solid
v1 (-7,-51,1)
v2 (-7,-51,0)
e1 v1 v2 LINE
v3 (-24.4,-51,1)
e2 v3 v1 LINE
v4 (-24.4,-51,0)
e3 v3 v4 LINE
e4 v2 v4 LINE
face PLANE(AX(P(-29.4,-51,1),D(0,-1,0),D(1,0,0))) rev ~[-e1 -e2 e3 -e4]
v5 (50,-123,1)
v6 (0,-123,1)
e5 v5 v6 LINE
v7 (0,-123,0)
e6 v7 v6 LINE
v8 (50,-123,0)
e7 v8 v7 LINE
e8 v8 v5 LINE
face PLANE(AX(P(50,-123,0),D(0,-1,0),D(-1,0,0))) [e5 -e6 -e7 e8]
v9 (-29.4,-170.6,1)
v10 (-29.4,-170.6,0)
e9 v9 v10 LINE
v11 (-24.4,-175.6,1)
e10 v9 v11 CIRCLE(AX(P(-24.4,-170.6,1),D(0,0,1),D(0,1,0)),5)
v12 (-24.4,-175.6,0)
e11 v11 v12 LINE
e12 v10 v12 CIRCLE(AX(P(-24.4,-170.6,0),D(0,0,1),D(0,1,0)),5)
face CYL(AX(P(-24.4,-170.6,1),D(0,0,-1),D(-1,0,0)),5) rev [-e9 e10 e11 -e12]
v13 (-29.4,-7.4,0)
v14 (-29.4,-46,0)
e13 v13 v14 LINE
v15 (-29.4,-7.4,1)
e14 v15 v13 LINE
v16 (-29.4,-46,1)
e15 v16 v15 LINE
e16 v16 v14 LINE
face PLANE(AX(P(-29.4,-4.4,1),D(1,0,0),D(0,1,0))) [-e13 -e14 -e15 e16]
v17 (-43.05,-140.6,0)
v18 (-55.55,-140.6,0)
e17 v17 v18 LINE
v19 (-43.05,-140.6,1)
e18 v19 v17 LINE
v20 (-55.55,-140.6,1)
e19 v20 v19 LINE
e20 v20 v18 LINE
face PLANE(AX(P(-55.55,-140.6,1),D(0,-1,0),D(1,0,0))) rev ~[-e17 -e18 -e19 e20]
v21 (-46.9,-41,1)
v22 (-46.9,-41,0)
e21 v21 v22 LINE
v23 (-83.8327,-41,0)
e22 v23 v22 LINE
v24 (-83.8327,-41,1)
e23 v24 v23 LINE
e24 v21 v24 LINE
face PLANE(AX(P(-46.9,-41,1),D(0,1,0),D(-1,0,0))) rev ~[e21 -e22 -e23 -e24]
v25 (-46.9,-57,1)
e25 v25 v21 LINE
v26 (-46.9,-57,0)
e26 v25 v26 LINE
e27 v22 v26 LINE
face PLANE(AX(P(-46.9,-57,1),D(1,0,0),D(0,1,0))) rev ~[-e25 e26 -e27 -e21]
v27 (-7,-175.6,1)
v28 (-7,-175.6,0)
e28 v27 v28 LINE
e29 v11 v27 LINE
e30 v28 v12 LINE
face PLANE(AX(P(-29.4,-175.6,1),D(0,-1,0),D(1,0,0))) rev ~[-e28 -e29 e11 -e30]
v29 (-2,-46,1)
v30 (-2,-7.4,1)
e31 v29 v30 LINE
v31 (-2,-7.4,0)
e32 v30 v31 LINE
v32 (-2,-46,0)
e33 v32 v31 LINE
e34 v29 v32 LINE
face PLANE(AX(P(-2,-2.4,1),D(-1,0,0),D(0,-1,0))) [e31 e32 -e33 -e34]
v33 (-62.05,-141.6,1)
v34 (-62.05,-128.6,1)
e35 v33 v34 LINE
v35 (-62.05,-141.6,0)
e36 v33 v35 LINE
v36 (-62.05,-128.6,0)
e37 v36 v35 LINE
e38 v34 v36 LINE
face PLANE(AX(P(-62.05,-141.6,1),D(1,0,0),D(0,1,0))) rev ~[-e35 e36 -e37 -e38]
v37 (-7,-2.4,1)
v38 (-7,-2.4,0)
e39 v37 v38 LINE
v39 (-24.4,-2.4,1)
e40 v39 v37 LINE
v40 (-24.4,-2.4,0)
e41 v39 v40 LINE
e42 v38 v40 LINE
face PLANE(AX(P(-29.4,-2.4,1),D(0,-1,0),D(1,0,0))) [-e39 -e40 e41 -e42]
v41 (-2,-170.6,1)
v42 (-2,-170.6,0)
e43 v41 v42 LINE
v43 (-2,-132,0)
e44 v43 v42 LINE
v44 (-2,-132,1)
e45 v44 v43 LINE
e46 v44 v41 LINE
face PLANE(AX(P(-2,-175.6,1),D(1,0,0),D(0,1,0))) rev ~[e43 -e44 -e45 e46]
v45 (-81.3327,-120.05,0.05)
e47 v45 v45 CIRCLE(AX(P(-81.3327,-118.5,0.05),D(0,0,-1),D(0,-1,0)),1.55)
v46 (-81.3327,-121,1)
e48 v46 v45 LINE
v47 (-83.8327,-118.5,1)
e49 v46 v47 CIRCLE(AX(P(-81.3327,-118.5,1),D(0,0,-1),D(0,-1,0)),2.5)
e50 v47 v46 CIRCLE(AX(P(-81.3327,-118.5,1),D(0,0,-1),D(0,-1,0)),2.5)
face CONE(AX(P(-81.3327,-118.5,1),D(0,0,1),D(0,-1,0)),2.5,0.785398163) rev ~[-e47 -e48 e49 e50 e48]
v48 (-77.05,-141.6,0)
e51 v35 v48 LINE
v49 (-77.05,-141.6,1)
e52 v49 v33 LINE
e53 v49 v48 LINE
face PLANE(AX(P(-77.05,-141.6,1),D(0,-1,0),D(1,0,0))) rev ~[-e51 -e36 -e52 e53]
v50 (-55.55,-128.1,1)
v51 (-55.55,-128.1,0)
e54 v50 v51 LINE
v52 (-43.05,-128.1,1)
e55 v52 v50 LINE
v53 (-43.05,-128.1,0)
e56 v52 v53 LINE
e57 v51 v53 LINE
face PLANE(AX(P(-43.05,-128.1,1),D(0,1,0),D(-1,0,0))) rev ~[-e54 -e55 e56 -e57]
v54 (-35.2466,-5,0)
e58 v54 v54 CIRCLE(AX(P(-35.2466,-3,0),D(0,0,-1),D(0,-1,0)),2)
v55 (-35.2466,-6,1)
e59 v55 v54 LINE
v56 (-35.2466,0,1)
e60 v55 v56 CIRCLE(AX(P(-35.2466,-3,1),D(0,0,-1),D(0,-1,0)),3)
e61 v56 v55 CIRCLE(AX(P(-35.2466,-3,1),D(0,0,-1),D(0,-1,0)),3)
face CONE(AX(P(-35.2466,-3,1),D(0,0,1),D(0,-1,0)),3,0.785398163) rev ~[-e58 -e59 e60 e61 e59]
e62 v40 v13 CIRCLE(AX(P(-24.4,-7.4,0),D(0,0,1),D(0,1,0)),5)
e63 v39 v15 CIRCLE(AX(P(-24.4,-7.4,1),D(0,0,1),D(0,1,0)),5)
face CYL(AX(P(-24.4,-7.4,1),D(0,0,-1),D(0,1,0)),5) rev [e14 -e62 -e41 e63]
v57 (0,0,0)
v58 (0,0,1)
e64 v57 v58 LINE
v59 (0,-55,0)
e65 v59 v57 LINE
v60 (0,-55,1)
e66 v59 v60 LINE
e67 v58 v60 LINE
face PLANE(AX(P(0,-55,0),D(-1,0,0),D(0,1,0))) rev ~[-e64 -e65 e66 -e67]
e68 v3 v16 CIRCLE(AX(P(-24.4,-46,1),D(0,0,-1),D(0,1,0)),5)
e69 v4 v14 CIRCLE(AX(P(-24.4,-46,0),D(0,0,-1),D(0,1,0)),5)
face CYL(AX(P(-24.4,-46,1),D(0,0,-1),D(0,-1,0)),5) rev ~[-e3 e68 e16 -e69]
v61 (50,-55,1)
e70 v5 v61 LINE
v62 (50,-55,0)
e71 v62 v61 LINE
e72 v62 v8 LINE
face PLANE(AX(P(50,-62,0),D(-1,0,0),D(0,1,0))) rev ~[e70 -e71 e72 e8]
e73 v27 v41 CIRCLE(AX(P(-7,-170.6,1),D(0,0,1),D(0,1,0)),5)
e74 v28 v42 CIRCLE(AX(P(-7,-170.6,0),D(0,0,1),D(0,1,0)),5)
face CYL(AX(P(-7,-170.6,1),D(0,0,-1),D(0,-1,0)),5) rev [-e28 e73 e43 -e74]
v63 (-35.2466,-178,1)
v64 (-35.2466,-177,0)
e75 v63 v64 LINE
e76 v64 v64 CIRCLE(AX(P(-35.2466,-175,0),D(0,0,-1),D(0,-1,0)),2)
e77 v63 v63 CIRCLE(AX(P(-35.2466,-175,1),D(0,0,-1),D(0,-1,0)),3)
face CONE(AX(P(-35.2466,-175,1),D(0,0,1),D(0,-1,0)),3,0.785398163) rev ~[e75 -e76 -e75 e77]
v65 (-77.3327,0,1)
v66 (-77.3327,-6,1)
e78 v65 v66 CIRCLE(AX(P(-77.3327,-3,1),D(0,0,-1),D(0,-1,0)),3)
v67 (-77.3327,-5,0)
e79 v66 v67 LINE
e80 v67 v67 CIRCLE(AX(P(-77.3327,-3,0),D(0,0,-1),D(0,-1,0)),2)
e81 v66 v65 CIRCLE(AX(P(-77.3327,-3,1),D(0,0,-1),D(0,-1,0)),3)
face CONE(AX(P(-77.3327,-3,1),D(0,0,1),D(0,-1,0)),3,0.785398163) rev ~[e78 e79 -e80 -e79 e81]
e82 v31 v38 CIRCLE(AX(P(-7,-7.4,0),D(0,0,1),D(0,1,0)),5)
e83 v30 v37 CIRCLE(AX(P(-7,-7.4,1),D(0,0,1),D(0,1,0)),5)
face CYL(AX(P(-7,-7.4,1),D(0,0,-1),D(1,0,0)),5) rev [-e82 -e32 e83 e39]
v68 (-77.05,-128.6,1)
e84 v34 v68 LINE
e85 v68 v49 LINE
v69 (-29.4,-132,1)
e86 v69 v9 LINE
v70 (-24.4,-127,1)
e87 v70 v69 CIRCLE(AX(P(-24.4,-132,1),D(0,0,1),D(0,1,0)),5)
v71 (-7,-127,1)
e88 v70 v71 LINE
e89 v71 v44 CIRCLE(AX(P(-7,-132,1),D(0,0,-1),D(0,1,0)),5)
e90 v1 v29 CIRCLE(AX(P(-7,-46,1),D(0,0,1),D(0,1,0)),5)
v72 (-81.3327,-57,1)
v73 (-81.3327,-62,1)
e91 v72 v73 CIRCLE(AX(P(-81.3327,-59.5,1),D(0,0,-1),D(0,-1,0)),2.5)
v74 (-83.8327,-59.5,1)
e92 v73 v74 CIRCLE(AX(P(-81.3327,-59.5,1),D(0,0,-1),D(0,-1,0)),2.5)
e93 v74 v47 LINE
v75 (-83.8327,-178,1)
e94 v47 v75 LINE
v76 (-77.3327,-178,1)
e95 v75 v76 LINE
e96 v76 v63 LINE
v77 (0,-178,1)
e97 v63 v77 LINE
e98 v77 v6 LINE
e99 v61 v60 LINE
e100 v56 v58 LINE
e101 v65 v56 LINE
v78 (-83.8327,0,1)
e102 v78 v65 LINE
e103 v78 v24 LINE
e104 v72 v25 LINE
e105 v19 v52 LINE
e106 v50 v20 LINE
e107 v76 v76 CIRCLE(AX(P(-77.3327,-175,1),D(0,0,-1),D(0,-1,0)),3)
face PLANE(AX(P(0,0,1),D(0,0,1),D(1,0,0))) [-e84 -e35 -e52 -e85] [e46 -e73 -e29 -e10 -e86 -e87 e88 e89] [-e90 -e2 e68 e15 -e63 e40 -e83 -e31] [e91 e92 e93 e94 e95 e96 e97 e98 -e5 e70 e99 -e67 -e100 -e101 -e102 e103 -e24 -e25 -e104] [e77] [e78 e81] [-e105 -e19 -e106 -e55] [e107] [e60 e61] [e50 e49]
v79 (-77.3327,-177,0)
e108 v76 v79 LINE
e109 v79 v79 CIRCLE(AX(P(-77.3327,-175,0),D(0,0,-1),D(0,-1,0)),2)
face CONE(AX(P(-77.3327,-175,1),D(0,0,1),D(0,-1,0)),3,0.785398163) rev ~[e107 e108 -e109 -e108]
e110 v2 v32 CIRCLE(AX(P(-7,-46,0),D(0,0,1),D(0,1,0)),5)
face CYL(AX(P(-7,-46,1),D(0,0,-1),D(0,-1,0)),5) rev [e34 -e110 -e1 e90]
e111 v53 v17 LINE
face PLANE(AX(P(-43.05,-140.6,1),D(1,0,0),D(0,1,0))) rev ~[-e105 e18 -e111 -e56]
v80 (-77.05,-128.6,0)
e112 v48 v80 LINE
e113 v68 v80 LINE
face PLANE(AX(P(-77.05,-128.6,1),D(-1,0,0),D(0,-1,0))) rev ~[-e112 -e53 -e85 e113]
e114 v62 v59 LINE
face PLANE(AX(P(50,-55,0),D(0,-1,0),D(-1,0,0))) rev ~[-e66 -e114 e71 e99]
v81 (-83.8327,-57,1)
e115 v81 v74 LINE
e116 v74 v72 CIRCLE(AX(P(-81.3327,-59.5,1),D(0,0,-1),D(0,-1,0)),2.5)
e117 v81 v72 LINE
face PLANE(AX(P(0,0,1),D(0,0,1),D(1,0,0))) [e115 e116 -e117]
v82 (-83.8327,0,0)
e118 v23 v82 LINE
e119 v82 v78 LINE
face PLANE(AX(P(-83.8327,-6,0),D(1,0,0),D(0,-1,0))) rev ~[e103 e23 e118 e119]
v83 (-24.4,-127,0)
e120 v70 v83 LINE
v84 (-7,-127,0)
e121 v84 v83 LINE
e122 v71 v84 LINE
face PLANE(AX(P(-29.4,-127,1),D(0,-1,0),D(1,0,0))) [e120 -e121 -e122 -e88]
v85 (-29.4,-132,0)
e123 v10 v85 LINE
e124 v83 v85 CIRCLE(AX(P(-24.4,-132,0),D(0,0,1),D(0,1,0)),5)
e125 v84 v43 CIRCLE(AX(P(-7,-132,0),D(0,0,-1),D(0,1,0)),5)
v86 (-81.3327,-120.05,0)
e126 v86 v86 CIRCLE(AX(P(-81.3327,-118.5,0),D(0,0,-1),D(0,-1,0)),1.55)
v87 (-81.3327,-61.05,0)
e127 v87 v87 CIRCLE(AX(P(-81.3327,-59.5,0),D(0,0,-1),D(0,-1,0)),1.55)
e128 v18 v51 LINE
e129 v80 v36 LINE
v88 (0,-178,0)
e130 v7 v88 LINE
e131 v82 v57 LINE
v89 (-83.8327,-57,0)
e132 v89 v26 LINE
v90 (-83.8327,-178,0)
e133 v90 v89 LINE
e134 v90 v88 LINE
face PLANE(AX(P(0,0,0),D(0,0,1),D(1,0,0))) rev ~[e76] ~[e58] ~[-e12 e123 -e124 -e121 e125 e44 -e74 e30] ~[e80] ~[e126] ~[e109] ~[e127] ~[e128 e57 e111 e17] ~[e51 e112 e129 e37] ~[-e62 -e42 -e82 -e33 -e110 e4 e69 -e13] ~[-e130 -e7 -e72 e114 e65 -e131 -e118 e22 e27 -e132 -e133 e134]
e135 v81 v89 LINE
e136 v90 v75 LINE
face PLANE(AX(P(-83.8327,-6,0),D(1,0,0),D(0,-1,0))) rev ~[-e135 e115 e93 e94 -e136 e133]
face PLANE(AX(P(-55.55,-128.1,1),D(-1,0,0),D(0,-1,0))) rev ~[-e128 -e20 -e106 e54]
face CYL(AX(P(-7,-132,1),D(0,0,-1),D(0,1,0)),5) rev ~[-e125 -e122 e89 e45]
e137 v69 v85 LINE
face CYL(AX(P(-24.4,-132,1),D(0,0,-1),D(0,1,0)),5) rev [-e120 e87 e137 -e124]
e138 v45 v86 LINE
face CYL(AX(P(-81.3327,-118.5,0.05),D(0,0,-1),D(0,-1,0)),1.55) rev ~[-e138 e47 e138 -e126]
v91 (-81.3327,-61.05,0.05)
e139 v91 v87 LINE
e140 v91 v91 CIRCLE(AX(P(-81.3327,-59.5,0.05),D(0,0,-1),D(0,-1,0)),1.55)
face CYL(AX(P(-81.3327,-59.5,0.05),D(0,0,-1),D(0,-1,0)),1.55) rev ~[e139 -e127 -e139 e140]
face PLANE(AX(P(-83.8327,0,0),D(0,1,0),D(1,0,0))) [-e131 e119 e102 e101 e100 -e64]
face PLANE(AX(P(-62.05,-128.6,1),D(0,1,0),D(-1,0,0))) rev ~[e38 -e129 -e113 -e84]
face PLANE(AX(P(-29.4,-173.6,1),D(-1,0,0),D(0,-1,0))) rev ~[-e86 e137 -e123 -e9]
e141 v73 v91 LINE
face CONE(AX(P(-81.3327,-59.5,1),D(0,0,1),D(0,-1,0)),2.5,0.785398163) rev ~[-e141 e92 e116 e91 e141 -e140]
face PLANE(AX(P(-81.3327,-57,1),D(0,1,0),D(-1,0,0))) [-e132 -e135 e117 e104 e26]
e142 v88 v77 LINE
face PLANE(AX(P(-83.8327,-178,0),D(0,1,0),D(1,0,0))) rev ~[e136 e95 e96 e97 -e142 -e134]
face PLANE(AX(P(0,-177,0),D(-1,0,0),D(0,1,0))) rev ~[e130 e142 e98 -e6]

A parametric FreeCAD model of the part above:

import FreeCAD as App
import Part
import Sketcher
from FreeCAD import Vector
Q = App.Units.Quantity


def edges_at(feature, points):
    """Names of the edges that pass closest to the given points."""
    edges = feature.Shape.Edges
    near = lambda p: min(range(len(edges)), key=lambda i: edges[i].distToShape(Part.Vertex(*p))[0])
    return sorted({f"Edge{near(p) + 1}" for p in points})


def add_polygon(sketch, points):
    """Adds a closed chain of lines whose ends are joined by coincident constraints."""
    first, n = sketch.GeometryCount, len(points)
    for a, b in zip(points, points[1:] + points[:1]):
        sketch.addGeometry(Part.LineSegment(App.Vector(*a, 0), App.Vector(*b, 0)), False)
    for i in range(n):
        sketch.addConstraint(Sketcher.Constraint("Coincident", first + i, 2, first + (i + 1) % n, 1))

doc = App.newDocument("Part")
body = doc.addObject("PartDesign::Body", "Body")

sketch1 = body.newObject("Sketcher::SketchObject", "Sketch")
sketch1.AttachmentSupport = (doc.getObject("XY_Plane"), [""])
sketch1.MapMode = "FlatFace"
add_polygon(sketch1, [(0, -55), (0, 0), (-83.8327, 0), (-83.8327, -178), (0, -178), (0, -123), (50, -123), (50, -55)])
sketch1.addConstraint(Sketcher.Constraint("Vertical", 0))
sketch1.addConstraint(Sketcher.Constraint("Horizontal", 1))
sketch1.addConstraint(Sketcher.Constraint("Vertical", 2))
sketch1.addConstraint(Sketcher.Constraint("Horizontal", 3))
sketch1.addConstraint(Sketcher.Constraint("Vertical", 4))
sketch1.addConstraint(Sketcher.Constraint("Horizontal", 5))
sketch1.addConstraint(Sketcher.Constraint("Vertical", 6))
sketch1.addConstraint(Sketcher.Constraint("Horizontal", 7))
sketch1.addConstraint(Sketcher.Constraint("Coincident", 0, 2, -1, 1))
sketch1.addConstraint(Sketcher.Constraint("PointOnObject", 3, 2, -2))
sketch1.addConstraint(Sketcher.Constraint("Equal", 0, 4))
sketch1.addConstraint(Sketcher.Constraint("DistanceX", 5, 1, 5, 2, Q("50 mm")))
sketch1.addConstraint(Sketcher.Constraint("DistanceY", 0, 1, 0, 2, Q("55 mm")))
sketch1.addConstraint(Sketcher.Constraint("DistanceY", 2, 2, 2, 1, Q("178 mm")))
sketch1.addConstraint(Sketcher.Constraint("DistanceX", 1, 2, 1, 1, Q("83.8327 mm")))
pad1 = body.newObject("PartDesign::Pad", "Pad")
pad1.Profile = sketch1
pad1.Length = 1

sketch2 = body.newObject("Sketcher::SketchObject", "Sketch001")
sketch2.AttachmentSupport = (doc.getObject("XY_Plane"), [""])
sketch2.MapMode = "FlatFace"
sketch2.AttachmentOffset = App.Placement(Vector(0, 0, 1), App.Rotation())
sketch2.addGeometry(Part.Circle(Vector(-35.2466, -3, 0), Vector(0, 0, 1), 1.8), False)
sketch2.addGeometry(Part.Circle(Vector(-77.3327, -3, 0), Vector(0, 0, 1), 1.8), False)
sketch2.addGeometry(Part.Circle(Vector(-77.3327, -175, 0), Vector(0, 0, 1), 1.8), False)
sketch2.addGeometry(Part.Circle(Vector(-35.2466, -175, 0), Vector(0, 0, 1), 1.8), False)
sketch2.addConstraint(Sketcher.Constraint("Equal", 0, 1))
sketch2.addConstraint(Sketcher.Constraint("Equal", 1, 2))
sketch2.addConstraint(Sketcher.Constraint("Equal", 2, 3))
sketch2.addConstraint(Sketcher.Constraint("Horizontal", 0, 3, 1, 3))
sketch2.addConstraint(Sketcher.Constraint("Horizontal", 2, 3, 3, 3))
sketch2.addConstraint(Sketcher.Constraint("Vertical", 1, 3, 2, 3))
sketch2.addConstraint(Sketcher.Constraint("Vertical", 0, 3, 3, 3))
sketch2.addConstraint(Sketcher.Constraint("Diameter", 0, Q("3.6 mm")))
sketch2.addConstraint(Sketcher.Constraint("DistanceY", 0, 3, -1, 1, Q("3 mm")))
sketch2.addConstraint(Sketcher.Constraint("DistanceY", 2, 3, -1, 1, Q("175 mm")))
sketch2.addConstraint(Sketcher.Constraint("DistanceX", 1, 3, 0, 3, Q("42.086 mm")))
sketch2.addConstraint(Sketcher.Constraint("DistanceX", 0, 3, -1, 1, Q("35.2466 mm")))
doc.recompute()
hole = body.newObject("PartDesign::Hole", "Hole")
hole.Profile = sketch2
hole.ThreadType = "None"
hole.Diameter = 3.6
hole.DepthType = "ThroughAll"
hole.HoleCutType = "Countersink"
hole.HoleCutDiameter = 6
hole.HoleCutCountersinkAngle = 90

sketch3 = body.newObject("Sketcher::SketchObject", "Sketch002")
sketch3.AttachmentSupport = (doc.getObject("XY_Plane"), [""])
sketch3.MapMode = "FlatFace"
sketch3.AttachmentOffset = App.Placement(Vector(0, 0, 1), App.Rotation())
sketch3.addGeometry(Part.Circle(Vector(-81.3327, -59.5, 0), Vector(0, 0, 1), 1.55), False)
sketch3.addGeometry(Part.Circle(Vector(-81.3327, -118.5, 0), Vector(0, 0, 1), 1.55), False)
sketch3.addConstraint(Sketcher.Constraint("Equal", 0, 1))
sketch3.addConstraint(Sketcher.Constraint("Vertical", 0, 3, 1, 3))
sketch3.addConstraint(Sketcher.Constraint("Diameter", 0, Q("3.1 mm")))
sketch3.addConstraint(Sketcher.Constraint("DistanceY", 1, 3, 0, 3, Q("59 mm")))
sketch3.addConstraint(Sketcher.Constraint("DistanceY", 0, 3, -1, 1, Q("59.5 mm")))
sketch3.addConstraint(Sketcher.Constraint("DistanceX", 0, 3, -1, 1, Q("81.3327 mm")))
doc.recompute()
hole2 = body.newObject("PartDesign::Hole", "Hole001")
hole2.Profile = sketch3
hole2.ThreadType = "None"
hole2.Diameter = 3.1
hole2.DepthType = "ThroughAll"
hole2.HoleCutType = "Countersink"
hole2.HoleCutDiameter = 5
hole2.HoleCutCountersinkAngle = 90

sketch4 = body.newObject("Sketcher::SketchObject", "Sketch003")
sketch4.AttachmentSupport = (doc.getObject("XY_Plane"), [""])
sketch4.MapMode = "FlatFace"
sketch4.AttachmentOffset = App.Placement(Vector(0, 0, 1), App.Rotation())
add_polygon(sketch4, [(-55.55, -140.6), (-43.05, -140.6), (-43.05, -128.1), (-55.55, -128.1)])
add_polygon(sketch4, [(-62.05, -128.6), (-77.05, -128.6), (-77.05, -141.6), (-62.05, -141.6)])
add_polygon(sketch4, [(-83.8327, -41), (-83.8327, -57), (-46.9, -57), (-46.9, -41)])
add_polygon(sketch4, [(-29.4, -2.4), (-29.4, -51), (-2, -51), (-2, -2.4)])
add_polygon(sketch4, [(-2, -175.6), (-2, -127), (-29.4, -127), (-29.4, -175.6)])
sketch4.addConstraint(Sketcher.Constraint("Horizontal", 0))
sketch4.addConstraint(Sketcher.Constraint("Vertical", 1))
sketch4.addConstraint(Sketcher.Constraint("Horizontal", 2))
sketch4.addConstraint(Sketcher.Constraint("Vertical", 3))
sketch4.addConstraint(Sketcher.Constraint("Horizontal", 4))
sketch4.addConstraint(Sketcher.Constraint("Vertical", 5))
sketch4.addConstraint(Sketcher.Constraint("Horizontal", 6))
sketch4.addConstraint(Sketcher.Constraint("Vertical", 7))
sketch4.addConstraint(Sketcher.Constraint("Vertical", 8))
sketch4.addConstraint(Sketcher.Constraint("Horizontal", 9))
sketch4.addConstraint(Sketcher.Constraint("Vertical", 10))
sketch4.addConstraint(Sketcher.Constraint("Horizontal", 11))
sketch4.addConstraint(Sketcher.Constraint("Vertical", 12))
sketch4.addConstraint(Sketcher.Constraint("Horizontal", 13))
sketch4.addConstraint(Sketcher.Constraint("Vertical", 14))
sketch4.addConstraint(Sketcher.Constraint("Horizontal", 15))
sketch4.addConstraint(Sketcher.Constraint("Vertical", 16))
sketch4.addConstraint(Sketcher.Constraint("Horizontal", 17))
sketch4.addConstraint(Sketcher.Constraint("Vertical", 18))
sketch4.addConstraint(Sketcher.Constraint("Horizontal", 19))
sketch4.addConstraint(Sketcher.Constraint("Vertical", 14, 2, 16, 2))
sketch4.addConstraint(Sketcher.Constraint("Vertical", 15, 2, 17, 2))
sketch4.addConstraint(Sketcher.Constraint("Equal", 2, 1))
sketch4.addConstraint(Sketcher.Constraint("Equal", 14, 16))
sketch4.addConstraint(Sketcher.Constraint("DistanceX", 13, 2, -1, 1, Q("2 mm")))
sketch4.addConstraint(Sketcher.Constraint("DistanceY", 5, 2, 3, 2, Q("1 mm")))
sketch4.addConstraint(Sketcher.Constraint("DistanceX", 4, 2, 4, 1, Q("15 mm")))
sketch4.addConstraint(Sketcher.Constraint("DistanceY", 5, 2, 5, 1, Q("13 mm")))
sketch4.addConstraint(Sketcher.Constraint("DistanceY", 8, 2, 8, 1, Q("16 mm")))
sketch4.addConstraint(Sketcher.Constraint("DistanceX", 0, 1, 0, 2, Q("12.5 mm")))
sketch4.addConstraint(Sketcher.Constraint("DistanceX", 13, 1, 13, 2, Q("27.4 mm")))
sketch4.addConstraint(Sketcher.Constraint("DistanceY", 12, 2, 12, 1, Q("48.6 mm")))
sketch4.addConstraint(Sketcher.Constraint("DistanceY", 8, 2, -1, 1, Q("57 mm")))
sketch4.addConstraint(Sketcher.Constraint("DistanceY", 12, 2, -1, 1, Q("51 mm")))
sketch4.addConstraint(Sketcher.Constraint("DistanceY", 16, 2, -1, 1, Q("127 mm")))
sketch4.addConstraint(Sketcher.Constraint("DistanceX", 4, 2, 1, 2, Q("34 mm")))
sketch4.addConstraint(Sketcher.Constraint("DistanceY", 18, 2, 0, 2, Q("35 mm")))
sketch4.addConstraint(Sketcher.Constraint("DistanceX", 9, 2, -1, 1, Q("46.9 mm")))
sketch4.addConstraint(Sketcher.Constraint("DistanceX", 0, 2, -1, 1, Q("43.05 mm")))
sketch4.addConstraint(Sketcher.Constraint("DistanceX", 9, 1, 9, 2, Q("36.9327 mm")))
pocket1 = body.newObject("PartDesign::Pocket", "Pocket")
pocket1.Profile = sketch4
pocket1.Type = "UpToFirst"
doc.recompute()

fillet = body.newObject("PartDesign::Fillet", "Fillet")
fillet.Base = (pocket1, edges_at(pocket1, [
    (-2, -2.4, 0.5),
    (-2, -51, 0.5),
    (-29.4, -51, 0.5),
    (-29.4, -2.4, 0.5),
    (-29.4, -127, 0.5),
    (-2, -175.6, 0.5),
    (-2, -127, 0.5),
    (-29.4, -175.6, 0.5),
]))
fillet.Radius = 5

doc.recompute()
